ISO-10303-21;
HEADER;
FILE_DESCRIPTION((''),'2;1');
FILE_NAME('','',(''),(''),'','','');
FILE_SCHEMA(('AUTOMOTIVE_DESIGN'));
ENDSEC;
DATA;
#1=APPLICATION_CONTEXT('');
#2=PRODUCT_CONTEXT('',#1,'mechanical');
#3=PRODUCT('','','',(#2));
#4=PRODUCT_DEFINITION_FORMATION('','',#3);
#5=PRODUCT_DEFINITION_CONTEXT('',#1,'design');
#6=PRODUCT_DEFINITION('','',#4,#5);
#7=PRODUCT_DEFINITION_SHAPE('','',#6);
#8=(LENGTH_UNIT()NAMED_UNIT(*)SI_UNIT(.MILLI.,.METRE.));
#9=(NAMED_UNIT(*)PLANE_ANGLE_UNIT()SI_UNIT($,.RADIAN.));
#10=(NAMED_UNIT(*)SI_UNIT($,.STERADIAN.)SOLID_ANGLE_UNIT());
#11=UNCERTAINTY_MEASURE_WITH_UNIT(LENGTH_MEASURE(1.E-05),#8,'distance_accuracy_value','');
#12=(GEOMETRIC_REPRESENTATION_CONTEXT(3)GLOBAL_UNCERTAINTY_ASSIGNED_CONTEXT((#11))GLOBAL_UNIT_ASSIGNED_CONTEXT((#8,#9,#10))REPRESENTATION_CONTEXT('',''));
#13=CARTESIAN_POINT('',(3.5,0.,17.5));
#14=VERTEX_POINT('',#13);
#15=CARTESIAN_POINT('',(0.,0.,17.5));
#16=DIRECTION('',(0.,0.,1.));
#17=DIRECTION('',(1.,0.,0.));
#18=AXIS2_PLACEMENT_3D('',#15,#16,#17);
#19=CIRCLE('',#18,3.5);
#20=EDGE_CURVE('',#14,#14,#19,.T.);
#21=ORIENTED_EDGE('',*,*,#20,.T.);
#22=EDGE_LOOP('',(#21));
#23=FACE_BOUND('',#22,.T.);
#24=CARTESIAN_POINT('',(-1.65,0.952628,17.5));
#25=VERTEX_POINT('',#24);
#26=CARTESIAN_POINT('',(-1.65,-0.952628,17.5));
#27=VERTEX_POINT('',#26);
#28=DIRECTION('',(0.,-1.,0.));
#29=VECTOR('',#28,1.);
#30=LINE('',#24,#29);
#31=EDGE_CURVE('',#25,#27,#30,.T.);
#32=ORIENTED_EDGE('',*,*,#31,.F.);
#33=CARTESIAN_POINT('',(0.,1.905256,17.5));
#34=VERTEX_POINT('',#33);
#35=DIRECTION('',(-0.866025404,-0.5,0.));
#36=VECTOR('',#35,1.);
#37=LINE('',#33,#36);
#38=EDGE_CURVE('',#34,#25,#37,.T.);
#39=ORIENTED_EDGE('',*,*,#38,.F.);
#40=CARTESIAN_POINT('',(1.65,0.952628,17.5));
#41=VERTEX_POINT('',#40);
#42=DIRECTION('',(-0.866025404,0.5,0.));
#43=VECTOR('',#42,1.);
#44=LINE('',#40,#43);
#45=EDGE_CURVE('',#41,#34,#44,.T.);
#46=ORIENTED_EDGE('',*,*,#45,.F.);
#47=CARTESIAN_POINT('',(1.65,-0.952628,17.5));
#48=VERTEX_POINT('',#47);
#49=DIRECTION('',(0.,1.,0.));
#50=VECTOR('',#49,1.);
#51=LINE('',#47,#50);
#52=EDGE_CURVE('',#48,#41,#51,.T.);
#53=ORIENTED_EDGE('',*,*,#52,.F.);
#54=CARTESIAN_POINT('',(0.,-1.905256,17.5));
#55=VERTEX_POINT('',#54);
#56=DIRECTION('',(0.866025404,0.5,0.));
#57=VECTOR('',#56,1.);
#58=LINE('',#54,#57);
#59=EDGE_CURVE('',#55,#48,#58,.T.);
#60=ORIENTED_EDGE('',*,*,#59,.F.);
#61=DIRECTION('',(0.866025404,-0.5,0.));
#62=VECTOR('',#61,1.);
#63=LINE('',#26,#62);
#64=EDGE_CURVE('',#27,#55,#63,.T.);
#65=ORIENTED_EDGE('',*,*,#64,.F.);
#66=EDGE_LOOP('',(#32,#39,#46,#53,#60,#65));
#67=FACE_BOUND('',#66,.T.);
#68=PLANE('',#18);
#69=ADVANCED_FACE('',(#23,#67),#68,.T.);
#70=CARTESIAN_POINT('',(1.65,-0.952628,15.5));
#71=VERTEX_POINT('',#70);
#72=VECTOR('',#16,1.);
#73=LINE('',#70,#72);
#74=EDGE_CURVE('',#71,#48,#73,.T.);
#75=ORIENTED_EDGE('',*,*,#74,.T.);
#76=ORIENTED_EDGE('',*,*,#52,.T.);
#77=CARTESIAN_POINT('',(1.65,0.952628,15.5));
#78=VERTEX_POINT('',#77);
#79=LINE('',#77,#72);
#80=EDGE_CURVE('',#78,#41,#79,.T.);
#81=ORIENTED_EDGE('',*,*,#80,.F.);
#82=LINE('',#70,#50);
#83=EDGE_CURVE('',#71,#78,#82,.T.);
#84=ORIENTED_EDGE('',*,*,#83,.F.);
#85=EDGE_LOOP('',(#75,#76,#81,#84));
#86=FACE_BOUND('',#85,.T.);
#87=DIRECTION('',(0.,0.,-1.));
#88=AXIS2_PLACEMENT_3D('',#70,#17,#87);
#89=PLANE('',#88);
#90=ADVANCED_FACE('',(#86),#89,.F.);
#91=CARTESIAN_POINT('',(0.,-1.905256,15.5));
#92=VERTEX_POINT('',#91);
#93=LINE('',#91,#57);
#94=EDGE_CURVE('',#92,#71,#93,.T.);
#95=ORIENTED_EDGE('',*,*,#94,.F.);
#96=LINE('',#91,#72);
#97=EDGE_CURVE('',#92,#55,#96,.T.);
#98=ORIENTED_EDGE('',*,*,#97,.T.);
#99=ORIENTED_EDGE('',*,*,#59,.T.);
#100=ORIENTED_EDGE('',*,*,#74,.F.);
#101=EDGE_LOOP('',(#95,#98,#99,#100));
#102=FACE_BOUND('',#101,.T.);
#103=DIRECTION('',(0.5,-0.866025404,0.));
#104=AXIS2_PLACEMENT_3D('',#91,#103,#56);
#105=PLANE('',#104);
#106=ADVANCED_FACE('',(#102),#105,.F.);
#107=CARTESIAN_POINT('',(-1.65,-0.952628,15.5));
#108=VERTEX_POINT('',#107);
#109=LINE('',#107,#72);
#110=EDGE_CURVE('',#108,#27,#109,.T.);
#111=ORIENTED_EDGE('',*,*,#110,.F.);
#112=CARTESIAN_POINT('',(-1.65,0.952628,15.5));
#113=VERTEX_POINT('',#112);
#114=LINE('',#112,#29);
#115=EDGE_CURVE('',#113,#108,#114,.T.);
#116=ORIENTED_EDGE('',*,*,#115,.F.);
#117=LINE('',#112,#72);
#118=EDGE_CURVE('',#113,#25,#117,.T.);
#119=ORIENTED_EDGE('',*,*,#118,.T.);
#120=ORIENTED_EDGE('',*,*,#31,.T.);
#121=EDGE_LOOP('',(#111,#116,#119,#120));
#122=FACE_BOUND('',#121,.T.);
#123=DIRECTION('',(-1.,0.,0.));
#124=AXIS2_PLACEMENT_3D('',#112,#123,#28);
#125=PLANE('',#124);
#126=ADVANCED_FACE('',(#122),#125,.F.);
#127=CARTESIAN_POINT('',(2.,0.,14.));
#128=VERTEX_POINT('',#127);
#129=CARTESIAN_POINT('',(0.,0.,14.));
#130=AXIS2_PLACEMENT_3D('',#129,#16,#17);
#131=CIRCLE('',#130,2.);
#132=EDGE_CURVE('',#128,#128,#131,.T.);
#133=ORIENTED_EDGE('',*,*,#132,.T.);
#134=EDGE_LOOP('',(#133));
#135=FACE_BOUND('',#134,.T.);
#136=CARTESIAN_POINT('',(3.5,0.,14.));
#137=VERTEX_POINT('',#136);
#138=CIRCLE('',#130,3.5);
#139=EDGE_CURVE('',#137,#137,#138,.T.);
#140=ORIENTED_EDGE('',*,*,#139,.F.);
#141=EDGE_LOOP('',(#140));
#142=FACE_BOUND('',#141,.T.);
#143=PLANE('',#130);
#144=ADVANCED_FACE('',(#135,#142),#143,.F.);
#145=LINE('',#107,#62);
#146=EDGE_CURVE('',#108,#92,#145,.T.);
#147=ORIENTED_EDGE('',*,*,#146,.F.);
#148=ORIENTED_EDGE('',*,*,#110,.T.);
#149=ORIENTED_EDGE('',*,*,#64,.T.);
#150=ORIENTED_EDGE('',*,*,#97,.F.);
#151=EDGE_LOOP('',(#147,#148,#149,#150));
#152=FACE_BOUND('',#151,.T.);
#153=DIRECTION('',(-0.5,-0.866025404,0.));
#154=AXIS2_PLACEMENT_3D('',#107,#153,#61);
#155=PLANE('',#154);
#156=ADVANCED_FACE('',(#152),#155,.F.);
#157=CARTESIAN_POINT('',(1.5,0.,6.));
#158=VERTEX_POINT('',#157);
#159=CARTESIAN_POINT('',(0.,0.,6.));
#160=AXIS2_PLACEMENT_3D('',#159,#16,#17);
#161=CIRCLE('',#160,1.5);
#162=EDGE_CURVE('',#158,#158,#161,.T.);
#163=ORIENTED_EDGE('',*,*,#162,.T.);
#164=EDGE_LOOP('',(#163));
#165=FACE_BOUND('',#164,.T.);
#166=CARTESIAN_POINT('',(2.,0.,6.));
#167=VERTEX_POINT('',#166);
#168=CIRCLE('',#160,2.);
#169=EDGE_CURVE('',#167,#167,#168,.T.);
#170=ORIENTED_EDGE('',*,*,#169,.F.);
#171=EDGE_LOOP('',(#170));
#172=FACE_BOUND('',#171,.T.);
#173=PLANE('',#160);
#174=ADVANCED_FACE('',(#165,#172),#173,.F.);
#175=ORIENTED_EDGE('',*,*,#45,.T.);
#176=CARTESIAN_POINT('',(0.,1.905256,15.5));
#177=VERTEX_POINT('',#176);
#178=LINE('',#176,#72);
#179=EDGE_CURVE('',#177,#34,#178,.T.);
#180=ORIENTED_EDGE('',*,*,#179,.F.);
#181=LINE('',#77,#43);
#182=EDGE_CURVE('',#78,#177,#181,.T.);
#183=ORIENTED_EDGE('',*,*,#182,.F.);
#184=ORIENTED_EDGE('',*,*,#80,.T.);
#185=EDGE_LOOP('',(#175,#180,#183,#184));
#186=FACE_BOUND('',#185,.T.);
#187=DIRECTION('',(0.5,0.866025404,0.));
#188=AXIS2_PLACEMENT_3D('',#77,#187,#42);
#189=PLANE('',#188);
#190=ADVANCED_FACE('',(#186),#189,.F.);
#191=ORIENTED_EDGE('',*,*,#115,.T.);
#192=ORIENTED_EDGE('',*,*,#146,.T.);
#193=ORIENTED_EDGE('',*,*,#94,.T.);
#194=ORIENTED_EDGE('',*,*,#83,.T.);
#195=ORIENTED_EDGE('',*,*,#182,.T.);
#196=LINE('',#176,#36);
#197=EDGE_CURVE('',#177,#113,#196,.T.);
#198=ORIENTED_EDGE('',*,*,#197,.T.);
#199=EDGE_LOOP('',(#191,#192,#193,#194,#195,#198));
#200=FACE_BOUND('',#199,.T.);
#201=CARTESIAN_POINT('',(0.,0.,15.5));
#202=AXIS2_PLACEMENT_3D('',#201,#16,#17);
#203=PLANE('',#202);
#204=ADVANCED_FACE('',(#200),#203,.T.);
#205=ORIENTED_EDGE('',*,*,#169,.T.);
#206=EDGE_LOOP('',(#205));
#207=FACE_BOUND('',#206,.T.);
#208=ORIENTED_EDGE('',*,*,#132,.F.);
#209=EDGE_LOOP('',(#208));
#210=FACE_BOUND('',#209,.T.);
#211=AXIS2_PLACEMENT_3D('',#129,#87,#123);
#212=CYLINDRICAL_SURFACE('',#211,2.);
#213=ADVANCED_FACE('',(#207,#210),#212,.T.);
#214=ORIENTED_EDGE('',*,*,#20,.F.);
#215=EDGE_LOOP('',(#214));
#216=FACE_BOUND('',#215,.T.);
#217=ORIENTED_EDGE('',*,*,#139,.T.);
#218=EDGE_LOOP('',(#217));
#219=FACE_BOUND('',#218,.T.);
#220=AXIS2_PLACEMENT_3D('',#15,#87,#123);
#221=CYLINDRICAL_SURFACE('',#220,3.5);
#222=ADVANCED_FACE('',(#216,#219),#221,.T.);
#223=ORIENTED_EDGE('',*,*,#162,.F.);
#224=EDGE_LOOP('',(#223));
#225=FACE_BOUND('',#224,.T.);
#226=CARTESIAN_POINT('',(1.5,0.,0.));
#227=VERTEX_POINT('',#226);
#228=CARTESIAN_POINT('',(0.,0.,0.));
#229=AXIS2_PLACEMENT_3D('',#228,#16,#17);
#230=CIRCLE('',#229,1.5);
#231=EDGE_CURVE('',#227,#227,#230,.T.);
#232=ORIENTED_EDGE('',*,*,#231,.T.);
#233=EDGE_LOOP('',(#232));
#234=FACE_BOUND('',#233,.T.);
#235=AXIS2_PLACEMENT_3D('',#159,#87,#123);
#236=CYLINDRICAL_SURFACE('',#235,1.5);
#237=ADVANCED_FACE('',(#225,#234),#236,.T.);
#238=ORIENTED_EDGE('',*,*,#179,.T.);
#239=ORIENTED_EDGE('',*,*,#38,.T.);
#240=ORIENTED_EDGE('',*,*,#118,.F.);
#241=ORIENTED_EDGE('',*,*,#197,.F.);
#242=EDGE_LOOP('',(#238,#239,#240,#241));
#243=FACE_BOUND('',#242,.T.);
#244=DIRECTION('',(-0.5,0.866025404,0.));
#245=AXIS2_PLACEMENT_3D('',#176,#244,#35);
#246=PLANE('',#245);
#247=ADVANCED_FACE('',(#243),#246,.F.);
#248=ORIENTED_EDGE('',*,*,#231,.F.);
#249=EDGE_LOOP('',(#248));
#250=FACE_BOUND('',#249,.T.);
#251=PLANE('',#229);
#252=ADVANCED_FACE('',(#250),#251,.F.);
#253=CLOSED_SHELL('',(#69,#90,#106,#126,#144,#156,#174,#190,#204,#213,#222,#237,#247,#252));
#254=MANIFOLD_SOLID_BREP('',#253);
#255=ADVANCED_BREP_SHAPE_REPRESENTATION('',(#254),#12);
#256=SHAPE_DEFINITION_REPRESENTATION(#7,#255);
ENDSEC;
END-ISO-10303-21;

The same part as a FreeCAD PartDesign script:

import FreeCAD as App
import Part
import Sketcher
from FreeCAD import Vector
Q = App.Units.Quantity


def add_polygon(sketch, points):
    """Adds a closed chain of lines whose ends are joined by coincident constraints."""
    first, n = sketch.GeometryCount, len(points)
    for a, b in zip(points, points[1:] + points[:1]):
        sketch.addGeometry(Part.LineSegment(App.Vector(*a, 0), App.Vector(*b, 0)), False)
    for i in range(n):
        sketch.addConstraint(Sketcher.Constraint("Coincident", first + i, 2, first + (i + 1) % n, 1))

doc = App.newDocument("Part")
body = doc.addObject("PartDesign::Body", "Body")

sketch1 = doc.addObject("Sketcher::SketchObject", "Sketch")
body.addObject(sketch1)
sketch1.AttachmentSupport = (doc.XY_Plane, [""])
sketch1.MapMode = "FlatFace"
sketch1.addGeometry(Part.Circle(Vector(0, 0, 0), Vector(0, 0, 1), 1.5), False)
sketch1.addConstraint([
    Sketcher.Constraint("Coincident", 0, 3, -1, 1),
    Sketcher.Constraint("Diameter", 0, 3.0),
])
pad1 = doc.addObject("PartDesign::Pad", "Pad")
body.addObject(pad1)
pad1.Profile = sketch1
pad1.Length = 6

sketch2 = doc.addObject("Sketcher::SketchObject", "Sketch001")
body.addObject(sketch2)
sketch2.AttachmentSupport = (doc.XY_Plane, [""])
sketch2.MapMode = "FlatFace"
sketch2.AttachmentOffset = App.Placement(Vector(0, 0, 6), App.Rotation())
sketch2.addGeometry(Part.Circle(Vector(0, 0, 0), Vector(0, 0, 1), 2), False)
sketch2.addConstraint([
    Sketcher.Constraint("Coincident", 0, 3, -1, 1),
    Sketcher.Constraint("Diameter", 0, 4.0),
])
pad2 = doc.addObject("PartDesign::Pad", "Pad001")
body.addObject(pad2)
pad2.Profile = sketch2
pad2.Length = 8

sketch3 = doc.addObject("Sketcher::SketchObject", "Sketch002")
body.addObject(sketch3)
sketch3.AttachmentSupport = (doc.XY_Plane, [""])
sketch3.MapMode = "FlatFace"
sketch3.AttachmentOffset = App.Placement(Vector(0, 0, 14), App.Rotation())
sketch3.addGeometry(Part.Circle(Vector(0, 0, 0), Vector(0, 0, 1), 3.5), False)
sketch3.addConstraint([
    Sketcher.Constraint("Coincident", 0, 3, -1, 1),
    Sketcher.Constraint("Diameter", 0, 7.0),
])
pad3 = doc.addObject("PartDesign::Pad", "Pad002")
body.addObject(pad3)
pad3.Profile = sketch3
pad3.Length = 3.5

sketch4 = doc.addObject("Sketcher::SketchObject", "Sketch003")
body.addObject(sketch4)
sketch4.AttachmentSupport = (doc.XY_Plane, [""])
sketch4.MapMode = "FlatFace"
sketch4.AttachmentOffset = App.Placement(Vector(0, 0, 17.5), App.Rotation())
add_polygon(sketch4, [(0, 1.905256), (-1.65, 0.952628), (-1.65, -0.952628), (0, -1.905256), (1.65, -0.952628), (1.65, 0.952628)])
sketch4.addConstraint([
    Sketcher.Constraint("Vertical", 1),
    Sketcher.Constraint("Vertical", 4),
    Sketcher.Constraint("Symmetric", 0, 2, 3, 2, -1, 1),
    Sketcher.Constraint("Symmetric", 2, 2, 5, 2, -1, 1),
    Sketcher.Constraint("PointOnObject", 2, 2, -2),
    Sketcher.Constraint("Parallel", 2, 5),
    Sketcher.Constraint("Horizontal", 1, 2, 3, 2),
    Sketcher.Constraint("Angle", 0, Q("-150 deg")),
    Sketcher.Constraint("DistanceX", 1, 2, 3, 2, 3.3),
    Sketcher.Constraint("DistanceY", 1, 2, 1, 1, 1.905256),
])
pocket1 = doc.addObject("PartDesign::Pocket", "Pocket")
body.addObject(pocket1)
pocket1.Profile = sketch4
pocket1.Length = 2

doc.recompute()
